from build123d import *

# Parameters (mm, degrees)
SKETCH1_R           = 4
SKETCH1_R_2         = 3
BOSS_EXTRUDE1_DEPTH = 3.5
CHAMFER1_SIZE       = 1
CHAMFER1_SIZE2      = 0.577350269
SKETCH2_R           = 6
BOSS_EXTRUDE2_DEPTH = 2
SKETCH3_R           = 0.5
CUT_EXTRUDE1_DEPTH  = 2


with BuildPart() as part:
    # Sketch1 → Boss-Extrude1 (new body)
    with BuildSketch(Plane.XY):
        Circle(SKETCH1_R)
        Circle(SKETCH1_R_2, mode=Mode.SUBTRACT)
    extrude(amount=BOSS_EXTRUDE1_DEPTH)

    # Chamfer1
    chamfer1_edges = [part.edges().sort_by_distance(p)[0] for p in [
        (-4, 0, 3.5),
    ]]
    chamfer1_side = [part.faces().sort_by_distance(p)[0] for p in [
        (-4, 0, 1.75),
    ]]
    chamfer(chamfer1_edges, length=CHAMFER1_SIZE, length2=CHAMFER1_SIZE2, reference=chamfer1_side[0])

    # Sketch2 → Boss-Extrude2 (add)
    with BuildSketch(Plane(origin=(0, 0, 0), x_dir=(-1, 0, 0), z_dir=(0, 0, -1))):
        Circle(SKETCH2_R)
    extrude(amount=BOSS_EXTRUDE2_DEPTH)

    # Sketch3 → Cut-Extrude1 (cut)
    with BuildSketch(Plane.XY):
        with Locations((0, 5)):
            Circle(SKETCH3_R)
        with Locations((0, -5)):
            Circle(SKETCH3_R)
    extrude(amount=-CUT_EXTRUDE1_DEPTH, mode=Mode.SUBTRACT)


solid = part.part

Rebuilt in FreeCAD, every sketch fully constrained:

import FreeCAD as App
import Part
import Sketcher
Q = App.Units.Quantity


def edges_at(feature, points):
    """Names of the edges that pass closest to the given points."""
    edges = feature.Shape.Edges
    near = lambda p: min(range(len(edges)), key=lambda i: edges[i].distToShape(Part.Vertex(*p))[0])
    return sorted({f"Edge{near(p) + 1}" for p in points})

doc = App.newDocument("Part")
body = doc.addObject("PartDesign::Body", "Body")

# Sketch on XY plane
sketch1 = body.newObject("Sketcher::SketchObject", "Sketch")
sketch1.AttachmentSupport = (doc.getObject("XY_Plane"), [""])
sketch1.MapMode = "FlatFace"
sketch1.addGeometry(Part.Circle(App.Vector(0, 0, 0), App.Vector(0, 0, 1), 4), False)
sketch1.addGeometry(Part.Circle(App.Vector(0, 0, 0), App.Vector(0, 0, 1), 3), False)
sketch1.addConstraint(Sketcher.Constraint("Coincident", 0, 3, -1, 1))
sketch1.addConstraint(Sketcher.Constraint("Coincident", 1, 3, -1, 1))
sketch1.addConstraint(Sketcher.Constraint("Diameter", 0, Q("8 mm")))
sketch1.addConstraint(Sketcher.Constraint("Diameter", 1, Q("6 mm")))
pad1 = body.newObject("PartDesign::Pad", "Pad")
pad1.Profile = sketch1
pad1.Length = 3.5
doc.recompute()

chamfer = body.newObject("PartDesign::Chamfer", "Chamfer")
chamfer.Base = (pad1, edges_at(pad1, [(-4, 0, 3.5)]))
chamfer.ChamferType = "Two distances"
chamfer.Size = 1
chamfer.Size2 = 0.57735

# Sketch on XY plane
sketch2 = body.newObject("Sketcher::SketchObject", "Sketch001")
sketch2.AttachmentSupport = (doc.getObject("XY_Plane"), [""])
sketch2.MapMode = "FlatFace"
sketch2.addGeometry(Part.Circle(App.Vector(0, 0, 0), App.Vector(0, 0, 1), 6), False)
sketch2.addConstraint(Sketcher.Constraint("Coincident", 0, 3, -1, 1))
sketch2.addConstraint(Sketcher.Constraint("Diameter", 0, Q("12 mm")))
pad2 = body.newObject("PartDesign::Pad", "Pad001")
pad2.Profile = sketch2
pad2.Length = 2
pad2.Reversed = True

# Sketch on XY plane
sketch3 = body.newObject("Sketcher::SketchObject", "Sketch002")
sketch3.AttachmentSupport = (doc.getObject("XY_Plane"), [""])
sketch3.MapMode = "FlatFace"
sketch3.addGeometry(Part.Circle(App.Vector(0, 5, 0), App.Vector(0, 0, 1), 0.5), False)
sketch3.addGeometry(Part.Circle(App.Vector(0, -5, 0), App.Vector(0, 0, 1), 0.5), False)
sketch3.addConstraint(Sketcher.Constraint("Equal", 0, 1))
sketch3.addConstraint(Sketcher.Constraint("Symmetric", 0, 3, 1, 3, -1, 1))
sketch3.addConstraint(Sketcher.Constraint("PointOnObject", 0, 3, -2))
sketch3.addConstraint(Sketcher.Constraint("Diameter", 0, Q("1 mm")))
sketch3.addConstraint(Sketcher.Constraint("DistanceY", -1, 1, 0, 3, Q("5 mm")))
pocket1 = body.newObject("PartDesign::Pocket", "Pocket")
pocket1.Profile = sketch3
pocket1.Length = 2

doc.recompute()
